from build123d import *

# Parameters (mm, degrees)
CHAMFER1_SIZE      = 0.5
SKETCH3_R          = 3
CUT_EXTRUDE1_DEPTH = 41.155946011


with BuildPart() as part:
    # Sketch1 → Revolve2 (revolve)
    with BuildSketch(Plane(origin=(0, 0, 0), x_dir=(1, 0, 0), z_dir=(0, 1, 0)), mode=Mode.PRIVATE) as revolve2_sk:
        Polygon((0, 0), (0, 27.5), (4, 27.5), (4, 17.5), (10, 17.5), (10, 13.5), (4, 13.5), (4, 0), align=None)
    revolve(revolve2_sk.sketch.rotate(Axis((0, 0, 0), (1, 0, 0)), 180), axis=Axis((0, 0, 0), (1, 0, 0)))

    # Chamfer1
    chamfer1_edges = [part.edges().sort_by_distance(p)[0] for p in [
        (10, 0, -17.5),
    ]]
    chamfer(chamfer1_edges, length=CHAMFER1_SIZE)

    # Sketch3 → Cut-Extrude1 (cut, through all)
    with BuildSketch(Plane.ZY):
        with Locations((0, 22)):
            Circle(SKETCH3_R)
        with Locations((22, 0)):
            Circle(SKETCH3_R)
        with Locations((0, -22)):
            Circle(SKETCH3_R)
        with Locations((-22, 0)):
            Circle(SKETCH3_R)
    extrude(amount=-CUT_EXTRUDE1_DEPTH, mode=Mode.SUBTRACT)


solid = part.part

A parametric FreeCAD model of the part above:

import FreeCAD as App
import Part
import Sketcher
from FreeCAD import Vector


def edges_at(feature, points):
    """Names of the edges that pass closest to the given points."""
    edges = feature.Shape.Edges
    near = lambda p: min(range(len(edges)), key=lambda i: edges[i].distToShape(Part.Vertex(*p))[0])
    return sorted({f"Edge{near(p) + 1}" for p in points})


def add_polygon(sketch, points):
    """Adds a closed chain of lines whose ends are joined by coincident constraints."""
    first, n = sketch.GeometryCount, len(points)
    for a, b in zip(points, points[1:] + points[:1]):
        sketch.addGeometry(Part.LineSegment(App.Vector(*a, 0), App.Vector(*b, 0)), False)
    for i in range(n):
        sketch.addConstraint(Sketcher.Constraint("Coincident", first + i, 2, first + (i + 1) % n, 1))

doc = App.newDocument("Part")
body = doc.addObject("PartDesign::Body", "Body")

# Sketch on XZ plane
sketch1 = body.newObject("Sketcher::SketchObject", "Sketch")
sketch1.AttachmentSupport = (doc.getObject("XZ_Plane"), [""])
sketch1.MapMode = "FlatFace"
add_polygon(sketch1, [(0, -27.5), (0, 0), (4, 0), (4, -13.5), (10, -13.5), (10, -17.5), (4, -17.5), (4, -27.5)])  # lines 0-7
sketch1.addConstraint([
    Sketcher.Constraint("Vertical", 0),
    Sketcher.Constraint("Horizontal", 1),
    Sketcher.Constraint("Vertical", 2),
    Sketcher.Constraint("Horizontal", 3),
    Sketcher.Constraint("Vertical", 4),
    Sketcher.Constraint("Horizontal", 5),
    Sketcher.Constraint("Vertical", 6),
    Sketcher.Constraint("Horizontal", 7),
    Sketcher.Constraint("Coincident", 0, 2, -1, 1),
    Sketcher.Constraint("Vertical", 2, 2, 5, 2),
    Sketcher.Constraint("Equal", 7, 4),
    Sketcher.Constraint("DistanceX", 1, 1, 1, 2, 4.0),
    Sketcher.Constraint("DistanceX", 3, 1, 3, 2, 6.0),
    Sketcher.Constraint("DistanceY", 6, 2, 6, 1, 10.0),
    Sketcher.Constraint("DistanceY", 0, 1, 0, 2, 27.5),
])
revolution = body.newObject("PartDesign::Revolution", "Revolution")
revolution.Profile = sketch1
revolution.ReferenceAxis = (sketch1, ["H_Axis"])
revolution.Angle = 360
doc.recompute()

chamfer = body.newObject("PartDesign::Chamfer", "Chamfer")
chamfer.Base = (revolution, edges_at(revolution, [(10, 0, -17.5)]))
chamfer.Size = 0.5

# Sketch on YZ plane
sketch2 = body.newObject("Sketcher::SketchObject", "Sketch001")
sketch2.AttachmentSupport = (doc.getObject("YZ_Plane"), [""])
sketch2.MapMode = "FlatFace"
sketch2.addGeometry([
    Part.Circle(Vector(22, 0, 0), Vector(0, 0, 1), 3),
    Part.Circle(Vector(0, 22, 0), Vector(0, 0, 1), 3),
    Part.Circle(Vector(-22, 0, 0), Vector(0, 0, 1), 3),
    Part.Circle(Vector(0, -22, 0), Vector(0, 0, 1), 3),
], False)
sketch2.addConstraint([
    Sketcher.Constraint("Equal", 0, 1),
    Sketcher.Constraint("Equal", 1, 2),
    Sketcher.Constraint("Equal", 2, 3),
    Sketcher.Constraint("Symmetric", 0, 3, 2, 3, -1, 1),
    Sketcher.Constraint("Symmetric", 1, 3, 3, 3, -1, 1),
    Sketcher.Constraint("PointOnObject", 0, 3, -1),
    Sketcher.Constraint("PointOnObject", 1, 3, -2),
    Sketcher.Constraint("Diameter", 0, 6.0),
    Sketcher.Constraint("DistanceX", -1, 1, 0, 3, 22.0),
    Sketcher.Constraint("DistanceY", -1, 1, 1, 3, 22.0),
])
pocket1 = body.newObject("PartDesign::Pocket", "Pocket")
pocket1.Profile = sketch2
pocket1.Type = "ThroughAll"
pocket1.Reversed = True

doc.recompute()
